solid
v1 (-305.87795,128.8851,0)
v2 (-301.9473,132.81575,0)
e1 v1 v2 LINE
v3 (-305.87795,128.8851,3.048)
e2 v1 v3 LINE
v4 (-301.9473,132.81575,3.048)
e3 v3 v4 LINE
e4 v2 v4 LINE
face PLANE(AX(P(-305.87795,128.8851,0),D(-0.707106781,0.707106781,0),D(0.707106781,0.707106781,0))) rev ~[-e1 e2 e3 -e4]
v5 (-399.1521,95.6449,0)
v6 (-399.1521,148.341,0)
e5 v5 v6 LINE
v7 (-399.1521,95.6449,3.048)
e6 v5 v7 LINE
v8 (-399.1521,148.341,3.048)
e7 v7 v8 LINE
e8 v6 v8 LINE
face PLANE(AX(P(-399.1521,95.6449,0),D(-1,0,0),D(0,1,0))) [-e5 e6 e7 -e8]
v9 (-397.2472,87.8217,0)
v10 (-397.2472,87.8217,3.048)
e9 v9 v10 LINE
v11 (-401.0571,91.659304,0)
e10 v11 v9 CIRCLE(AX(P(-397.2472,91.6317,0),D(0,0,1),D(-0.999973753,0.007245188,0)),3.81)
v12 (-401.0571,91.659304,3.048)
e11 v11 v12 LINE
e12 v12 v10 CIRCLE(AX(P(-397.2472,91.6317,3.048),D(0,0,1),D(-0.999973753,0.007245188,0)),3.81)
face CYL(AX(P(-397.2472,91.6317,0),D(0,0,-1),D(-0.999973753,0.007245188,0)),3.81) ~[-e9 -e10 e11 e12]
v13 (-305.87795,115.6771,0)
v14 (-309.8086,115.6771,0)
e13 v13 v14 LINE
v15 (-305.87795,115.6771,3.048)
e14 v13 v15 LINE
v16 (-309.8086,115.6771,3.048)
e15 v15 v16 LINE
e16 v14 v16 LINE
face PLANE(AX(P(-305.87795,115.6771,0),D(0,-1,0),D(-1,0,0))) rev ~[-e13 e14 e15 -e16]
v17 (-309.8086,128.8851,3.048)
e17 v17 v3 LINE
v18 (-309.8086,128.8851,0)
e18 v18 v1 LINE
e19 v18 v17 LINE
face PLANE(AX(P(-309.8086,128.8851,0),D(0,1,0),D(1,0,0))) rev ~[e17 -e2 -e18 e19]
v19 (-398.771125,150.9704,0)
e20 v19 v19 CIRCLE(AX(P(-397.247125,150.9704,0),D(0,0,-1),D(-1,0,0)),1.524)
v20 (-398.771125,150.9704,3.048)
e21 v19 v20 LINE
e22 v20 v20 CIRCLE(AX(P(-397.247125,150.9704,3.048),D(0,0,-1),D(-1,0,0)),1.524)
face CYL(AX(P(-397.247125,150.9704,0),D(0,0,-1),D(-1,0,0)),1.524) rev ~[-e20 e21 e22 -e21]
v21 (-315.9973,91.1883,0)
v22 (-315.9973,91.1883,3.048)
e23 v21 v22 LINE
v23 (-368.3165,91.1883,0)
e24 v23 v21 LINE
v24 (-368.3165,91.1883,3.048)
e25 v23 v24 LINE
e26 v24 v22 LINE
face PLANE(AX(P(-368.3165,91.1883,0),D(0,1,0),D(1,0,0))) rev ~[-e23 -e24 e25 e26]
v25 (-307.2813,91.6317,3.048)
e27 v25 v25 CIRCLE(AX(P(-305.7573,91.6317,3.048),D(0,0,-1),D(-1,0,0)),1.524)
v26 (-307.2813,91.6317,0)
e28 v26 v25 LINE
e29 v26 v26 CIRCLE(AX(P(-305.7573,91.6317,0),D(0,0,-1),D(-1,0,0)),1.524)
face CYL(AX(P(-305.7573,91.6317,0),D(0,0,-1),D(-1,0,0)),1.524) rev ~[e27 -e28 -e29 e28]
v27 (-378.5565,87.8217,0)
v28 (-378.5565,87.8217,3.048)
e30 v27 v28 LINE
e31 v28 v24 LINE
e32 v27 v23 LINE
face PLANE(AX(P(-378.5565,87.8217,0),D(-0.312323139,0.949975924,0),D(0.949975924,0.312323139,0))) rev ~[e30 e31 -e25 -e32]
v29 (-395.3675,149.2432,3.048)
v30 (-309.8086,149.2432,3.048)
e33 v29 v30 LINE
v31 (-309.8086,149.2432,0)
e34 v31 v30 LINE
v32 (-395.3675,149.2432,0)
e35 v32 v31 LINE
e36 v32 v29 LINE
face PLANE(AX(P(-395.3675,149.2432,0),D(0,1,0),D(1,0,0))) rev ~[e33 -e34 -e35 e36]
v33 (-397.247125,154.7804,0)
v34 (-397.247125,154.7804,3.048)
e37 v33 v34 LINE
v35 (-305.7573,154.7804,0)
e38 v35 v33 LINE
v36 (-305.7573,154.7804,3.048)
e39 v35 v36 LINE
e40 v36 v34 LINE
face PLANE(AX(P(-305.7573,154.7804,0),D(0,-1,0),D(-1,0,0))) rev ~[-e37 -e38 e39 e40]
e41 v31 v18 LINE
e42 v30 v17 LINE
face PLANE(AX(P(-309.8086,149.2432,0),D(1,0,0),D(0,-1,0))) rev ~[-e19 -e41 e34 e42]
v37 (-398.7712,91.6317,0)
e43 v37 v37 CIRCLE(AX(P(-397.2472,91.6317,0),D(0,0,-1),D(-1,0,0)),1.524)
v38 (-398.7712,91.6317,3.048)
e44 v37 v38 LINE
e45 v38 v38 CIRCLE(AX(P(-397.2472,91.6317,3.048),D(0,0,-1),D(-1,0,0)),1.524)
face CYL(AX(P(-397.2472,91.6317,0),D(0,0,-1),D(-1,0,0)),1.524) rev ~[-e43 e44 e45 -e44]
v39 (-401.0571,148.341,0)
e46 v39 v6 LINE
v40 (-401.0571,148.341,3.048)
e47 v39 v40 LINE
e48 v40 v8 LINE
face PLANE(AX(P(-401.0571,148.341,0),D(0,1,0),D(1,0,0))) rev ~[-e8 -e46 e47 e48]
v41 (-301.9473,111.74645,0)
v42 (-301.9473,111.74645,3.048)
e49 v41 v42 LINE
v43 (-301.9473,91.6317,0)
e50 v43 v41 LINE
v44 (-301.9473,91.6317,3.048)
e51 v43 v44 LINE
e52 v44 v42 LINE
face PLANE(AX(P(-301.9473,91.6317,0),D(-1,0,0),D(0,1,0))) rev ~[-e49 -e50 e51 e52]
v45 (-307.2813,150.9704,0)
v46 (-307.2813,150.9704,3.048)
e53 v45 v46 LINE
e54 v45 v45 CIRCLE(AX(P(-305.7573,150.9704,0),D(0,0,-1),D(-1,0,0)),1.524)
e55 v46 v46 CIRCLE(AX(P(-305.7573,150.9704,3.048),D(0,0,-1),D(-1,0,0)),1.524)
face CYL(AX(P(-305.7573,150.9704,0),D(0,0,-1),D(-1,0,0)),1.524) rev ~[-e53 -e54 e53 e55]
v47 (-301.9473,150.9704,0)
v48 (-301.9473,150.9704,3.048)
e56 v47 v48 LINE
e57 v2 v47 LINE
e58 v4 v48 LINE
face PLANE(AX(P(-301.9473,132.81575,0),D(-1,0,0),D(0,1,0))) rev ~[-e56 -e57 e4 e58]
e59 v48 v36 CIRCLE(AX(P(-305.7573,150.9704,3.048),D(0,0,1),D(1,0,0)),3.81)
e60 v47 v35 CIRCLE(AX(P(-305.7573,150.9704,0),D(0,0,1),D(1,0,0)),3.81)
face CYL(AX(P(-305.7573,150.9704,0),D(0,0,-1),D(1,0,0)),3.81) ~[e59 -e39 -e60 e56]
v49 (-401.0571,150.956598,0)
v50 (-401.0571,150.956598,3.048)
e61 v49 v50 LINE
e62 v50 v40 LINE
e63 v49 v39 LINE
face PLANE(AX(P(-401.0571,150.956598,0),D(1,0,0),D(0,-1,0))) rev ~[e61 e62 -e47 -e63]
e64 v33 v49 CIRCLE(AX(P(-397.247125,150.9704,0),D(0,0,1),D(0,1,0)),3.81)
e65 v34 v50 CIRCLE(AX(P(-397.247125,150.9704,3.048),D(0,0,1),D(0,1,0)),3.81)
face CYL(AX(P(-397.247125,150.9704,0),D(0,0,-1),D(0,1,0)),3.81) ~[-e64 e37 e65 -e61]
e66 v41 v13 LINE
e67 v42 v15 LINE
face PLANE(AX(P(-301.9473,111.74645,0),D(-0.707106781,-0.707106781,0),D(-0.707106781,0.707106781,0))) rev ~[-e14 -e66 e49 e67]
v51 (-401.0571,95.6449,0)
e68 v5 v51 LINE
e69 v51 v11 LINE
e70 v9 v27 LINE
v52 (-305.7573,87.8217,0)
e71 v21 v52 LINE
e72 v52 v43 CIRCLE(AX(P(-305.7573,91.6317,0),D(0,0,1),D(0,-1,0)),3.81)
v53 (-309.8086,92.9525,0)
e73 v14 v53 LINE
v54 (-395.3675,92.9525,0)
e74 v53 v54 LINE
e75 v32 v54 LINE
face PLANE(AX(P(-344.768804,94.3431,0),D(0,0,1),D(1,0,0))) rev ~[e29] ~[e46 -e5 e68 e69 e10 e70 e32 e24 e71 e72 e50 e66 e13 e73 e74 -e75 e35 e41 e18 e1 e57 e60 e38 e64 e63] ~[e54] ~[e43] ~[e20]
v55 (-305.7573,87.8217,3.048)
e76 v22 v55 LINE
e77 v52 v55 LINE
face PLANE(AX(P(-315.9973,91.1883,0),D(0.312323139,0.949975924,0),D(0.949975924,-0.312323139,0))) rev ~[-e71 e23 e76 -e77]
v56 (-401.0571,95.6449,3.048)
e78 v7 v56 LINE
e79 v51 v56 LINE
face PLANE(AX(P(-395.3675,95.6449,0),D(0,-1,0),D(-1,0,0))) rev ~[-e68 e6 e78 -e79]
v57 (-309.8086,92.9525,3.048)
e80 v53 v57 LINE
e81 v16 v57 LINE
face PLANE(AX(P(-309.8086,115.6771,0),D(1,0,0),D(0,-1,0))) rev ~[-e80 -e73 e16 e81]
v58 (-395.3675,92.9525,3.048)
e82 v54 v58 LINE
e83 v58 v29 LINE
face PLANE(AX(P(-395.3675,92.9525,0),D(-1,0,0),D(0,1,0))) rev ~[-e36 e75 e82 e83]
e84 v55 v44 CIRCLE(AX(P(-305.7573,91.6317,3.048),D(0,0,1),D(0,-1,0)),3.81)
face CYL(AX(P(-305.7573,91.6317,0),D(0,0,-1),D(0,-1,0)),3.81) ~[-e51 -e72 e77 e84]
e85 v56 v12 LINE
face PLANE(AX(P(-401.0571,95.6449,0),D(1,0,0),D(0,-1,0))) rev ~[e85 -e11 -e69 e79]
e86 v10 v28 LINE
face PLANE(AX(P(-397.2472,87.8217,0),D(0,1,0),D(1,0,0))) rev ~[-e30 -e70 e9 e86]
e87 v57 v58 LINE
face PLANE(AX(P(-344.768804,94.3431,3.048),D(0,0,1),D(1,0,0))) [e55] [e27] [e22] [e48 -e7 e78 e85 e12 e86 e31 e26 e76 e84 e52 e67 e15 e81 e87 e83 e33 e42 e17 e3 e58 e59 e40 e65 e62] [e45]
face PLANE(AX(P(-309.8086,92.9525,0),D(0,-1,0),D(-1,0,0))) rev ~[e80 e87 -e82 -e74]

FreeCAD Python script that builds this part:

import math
import FreeCAD as App
import Part
import Sketcher
from FreeCAD import Vector
Q = App.Units.Quantity

doc = App.newDocument("Part")
body = doc.addObject("PartDesign::Body", "Body")

# Sketch on XY plane
sketch1 = doc.addObject("Sketcher::SketchObject", "Sketch")
body.addObject(sketch1)
sketch1.AttachmentSupport = (doc.XY_Plane, [""])
sketch1.MapMode = "FlatFace"
sketch1.addGeometry([
    Part.LineSegment(Vector(-401.0571, 150.956598, 0), Vector(-401.0571, 148.341, 0)),  # 0
    Part.LineSegment(Vector(-401.0571, 148.341, 0), Vector(-399.1521, 148.341, 0)),  # 1
    Part.LineSegment(Vector(-399.1521, 148.341, 0), Vector(-399.1521, 95.6449, 0)),  # 2
    Part.LineSegment(Vector(-399.1521, 95.6449, 0), Vector(-401.0571, 95.6449, 0)),  # 3
    Part.LineSegment(Vector(-401.0571, 95.6449, 0), Vector(-401.0571, 91.659304, 0)),  # 4
    Part.ArcOfCircle(Part.Circle(Vector(-397.2472, 91.6317, 0), Vector(0, 0, 1), 3.81), math.radians(179.584878), math.radians(270)),  # 5
    Part.LineSegment(Vector(-397.2472, 87.8217, 0), Vector(-378.5565, 87.8217, 0)),  # 6
    Part.LineSegment(Vector(-378.5565, 87.8217, 0), Vector(-368.3165, 91.1883, 0)),  # 7
    Part.LineSegment(Vector(-368.3165, 91.1883, 0), Vector(-315.9973, 91.1883, 0)),  # 8
    Part.LineSegment(Vector(-315.9973, 91.1883, 0), Vector(-305.7573, 87.8217, 0)),  # 9
    Part.ArcOfCircle(Part.Circle(Vector(-305.7573, 91.6317, 0), Vector(0, 0, 1), 3.81), math.radians(-90), math.radians(0)),  # 10
    Part.LineSegment(Vector(-301.9473, 91.6317, 0), Vector(-301.9473, 111.74645, 0)),  # 11
    Part.LineSegment(Vector(-301.9473, 111.74645, 0), Vector(-305.87795, 115.6771, 0)),  # 12
    Part.LineSegment(Vector(-305.87795, 115.6771, 0), Vector(-309.8086, 115.6771, 0)),  # 13
    Part.LineSegment(Vector(-309.8086, 115.6771, 0), Vector(-309.8086, 92.9525, 0)),  # 14
    Part.LineSegment(Vector(-309.8086, 92.9525, 0), Vector(-395.3675, 92.9525, 0)),  # 15
    Part.LineSegment(Vector(-395.3675, 92.9525, 0), Vector(-395.3675, 149.2432, 0)),  # 16
    Part.LineSegment(Vector(-395.3675, 149.2432, 0), Vector(-309.8086, 149.2432, 0)),  # 17
    Part.LineSegment(Vector(-309.8086, 149.2432, 0), Vector(-309.8086, 128.8851, 0)),  # 18
    Part.LineSegment(Vector(-309.8086, 128.8851, 0), Vector(-305.87795, 128.8851, 0)),  # 19
    Part.LineSegment(Vector(-305.87795, 128.8851, 0), Vector(-301.9473, 132.81575, 0)),  # 20
    Part.LineSegment(Vector(-301.9473, 132.81575, 0), Vector(-301.9473, 150.9704, 0)),  # 21
    Part.ArcOfCircle(Part.Circle(Vector(-305.7573, 150.9704, 0), Vector(0, 0, 1), 3.81), math.radians(0), math.radians(90)),  # 22
    Part.LineSegment(Vector(-305.7573, 154.7804, 0), Vector(-397.247125, 154.7804, 0)),  # 23
    Part.ArcOfCircle(Part.Circle(Vector(-397.247125, 150.9704, 0), Vector(0, 0, 1), 3.81), math.radians(90), math.radians(180.207561)),  # 24
    Part.Circle(Vector(-397.247125, 150.9704, 0), Vector(0, 0, 1), 1.3462),  # 25
    Part.Circle(Vector(-305.7573, 150.9704, 0), Vector(0, 0, 1), 1.3462),  # 26
    Part.Circle(Vector(-305.7573, 91.6317, 0), Vector(0, 0, 1), 1.3462),  # 27
    Part.Circle(Vector(-397.2472, 91.6317, 0), Vector(0, 0, 1), 1.3462),  # 28
], False)
sketch1.addConstraint([
    Sketcher.Constraint("Coincident", 0, 2, 1, 1),
    Sketcher.Constraint("Coincident", 1, 2, 2, 1),
    Sketcher.Constraint("Coincident", 2, 2, 3, 1),
    Sketcher.Constraint("Coincident", 3, 2, 4, 1),
    Sketcher.Constraint("Coincident", 4, 2, 5, 1),
    Sketcher.Constraint("Tangent", 5, 2, 6, 1),
    Sketcher.Constraint("Coincident", 6, 2, 7, 1),
    Sketcher.Constraint("Coincident", 7, 2, 8, 1),
    Sketcher.Constraint("Coincident", 8, 2, 9, 1),
    Sketcher.Constraint("Coincident", 9, 2, 10, 1),
    Sketcher.Constraint("Tangent", 10, 2, 11, 1),
    Sketcher.Constraint("Coincident", 11, 2, 12, 1),
    Sketcher.Constraint("Coincident", 12, 2, 13, 1),
    Sketcher.Constraint("Coincident", 13, 2, 14, 1),
    Sketcher.Constraint("Coincident", 14, 2, 15, 1),
    Sketcher.Constraint("Coincident", 15, 2, 16, 1),
    Sketcher.Constraint("Coincident", 16, 2, 17, 1),
    Sketcher.Constraint("Coincident", 17, 2, 18, 1),
    Sketcher.Constraint("Coincident", 18, 2, 19, 1),
    Sketcher.Constraint("Coincident", 19, 2, 20, 1),
    Sketcher.Constraint("Coincident", 20, 2, 21, 1),
    Sketcher.Constraint("Tangent", 21, 2, 22, 1),
    Sketcher.Constraint("Tangent", 22, 2, 23, 1),
    Sketcher.Constraint("Tangent", 23, 2, 24, 1),
    Sketcher.Constraint("Coincident", 24, 2, 0, 1),
    Sketcher.Constraint("Vertical", 0),
    Sketcher.Constraint("Horizontal", 1),
    Sketcher.Constraint("Vertical", 2),
    Sketcher.Constraint("Horizontal", 3),
    Sketcher.Constraint("Vertical", 4),
    Sketcher.Constraint("Horizontal", 6),
    Sketcher.Constraint("Horizontal", 8),
    Sketcher.Constraint("Vertical", 11),
    Sketcher.Constraint("Horizontal", 13),
    Sketcher.Constraint("Vertical", 14),
    Sketcher.Constraint("Horizontal", 15),
    Sketcher.Constraint("Vertical", 16),
    Sketcher.Constraint("Horizontal", 17),
    Sketcher.Constraint("Vertical", 18),
    Sketcher.Constraint("Horizontal", 19),
    Sketcher.Constraint("Vertical", 21),
    Sketcher.Constraint("Horizontal", 23),
    Sketcher.Constraint("Coincident", 25, 3, 24, 3),
    Sketcher.Constraint("Coincident", 26, 3, 22, 3),
    Sketcher.Constraint("Coincident", 27, 3, 10, 3),
    Sketcher.Constraint("Coincident", 28, 3, 5, 3),
    Sketcher.Constraint("Equal", 5, 10),
    Sketcher.Constraint("Equal", 10, 22),
    Sketcher.Constraint("Equal", 22, 24),
    Sketcher.Constraint("Equal", 25, 26),
    Sketcher.Constraint("Equal", 26, 27),
    Sketcher.Constraint("Equal", 27, 28),
    Sketcher.Constraint("Perpendicular", 12, 20),
    Sketcher.Constraint("Horizontal", 5, 3, 10, 3),
    Sketcher.Constraint("Vertical", 10, 3, 22, 3),
    Sketcher.Constraint("Vertical", 0, 2, 3, 2),
    Sketcher.Constraint("Vertical", 27, 3, 9, 2),
    Sketcher.Constraint("Vertical", 14, 2, 17, 2),
    Sketcher.Constraint("Vertical", 12, 2, 19, 2),
    Sketcher.Constraint("Equal", 7, 9),
    Sketcher.Constraint("Equal", 12, 20),
    Sketcher.Constraint("Radius", 5, Q("0.15 in")),
    Sketcher.Constraint("Diameter", 25, Q("0.106 in")),
    Sketcher.Constraint("DistanceX", 1, 1, 1, 2, Q("0.075 in")),
    Sketcher.Constraint("DistanceY", 13, 2, 18, 2, Q("0.52 in")),
    Sketcher.Constraint("DistanceY", 18, 2, 18, 1, Q("0.8015 in")),
    Sketcher.Constraint("DistanceY", 5, 3, 2, 2, Q("0.158 in")),
    Sketcher.Constraint("DistanceX", 2, 2, 7, 2, Q("1.214 in")),
    Sketcher.Constraint("DistanceY", 10, 3, 14, 2, Q("0.052 in")),
    Sketcher.Constraint("DistanceX", 2, 2, 15, 2, Q("0.149 in")),
    Sketcher.Constraint("DistanceY", 16, 2, 24, 3, Q("0.068 in")),
    Sketcher.Constraint("DistanceX", 6, 1, 6, 2, Q("18.6907 mm")),
    Sketcher.Constraint("DistanceX", 8, 1, 8, 2, Q("52.3192 mm")),
    Sketcher.Constraint("DistanceX", 15, 2, 15, 1, Q("85.5589 mm")),
    Sketcher.Constraint("DistanceY", 2, 2, 2, 1, Q("52.6961 mm")),
    Sketcher.Constraint("DistanceY", 14, 2, 14, 1, Q("22.7246 mm")),
    Sketcher.Constraint("DistanceX", 13, 2, 11, 2, Q("0.3095 in")),
    Sketcher.Constraint("DistanceX", 13, 2, 13, 1, Q("3.93065 mm")),
    Sketcher.Constraint("DistanceX", 5, 3, -1, 1, Q("397.2472 mm")),
    Sketcher.Constraint("DistanceY", -1, 1, 5, 3, Q("91.6317 mm")),
    Sketcher.Constraint("DistanceY", -1, 1, 7, 2, Q("91.1883 mm")),
    Sketcher.Constraint("DistanceX", 23, 2, 23, 1, Q("91.489825 mm")),
])
pad1 = doc.addObject("PartDesign::Pad", "Pad")
body.addObject(pad1)
pad1.Profile = sketch1
pad1.Length = Q("0.12 in")

# Sketch on XY plane
sketch2 = doc.addObject("Sketcher::SketchObject", "Sketch001")
body.addObject(sketch2)
sketch2.AttachmentSupport = (doc.XY_Plane, [""])
sketch2.MapMode = "FlatFace"
sketch2.addGeometry([
    Part.Circle(Vector(-305.8, 151, 0), Vector(0, 0, 1), 1.5),
    Part.Circle(Vector(-305.8, 91.6, 0), Vector(0, 0, 1), 1.5),
    Part.Circle(Vector(-397.2, 91.6, 0), Vector(0, 0, 1), 1.5),
    Part.Circle(Vector(-397.2, 151, 0), Vector(0, 0, 1), 1.5),
], False)
sketch2.addConstraint([
    Sketcher.Constraint("Equal", 0, 1),
    Sketcher.Constraint("Equal", 1, 2),
    Sketcher.Constraint("Equal", 2, 3),
    Sketcher.Constraint("Horizontal", 1, 3, 2, 3),
    Sketcher.Constraint("Horizontal", 0, 3, 3, 3),
    Sketcher.Constraint("Vertical", 0, 3, 1, 3),
    Sketcher.Constraint("Diameter", 0, Q("0.12 in")),
    Sketcher.Constraint("DistanceX", 0, 3, -1, 1, Q("305.7573 mm")),
    Sketcher.Constraint("DistanceY", -1, 1, 0, 3, Q("150.9704 mm")),
    Sketcher.Constraint("DistanceY", -1, 1, 1, 3, Q("91.6317 mm")),
    Sketcher.Constraint("DistanceX", 2, 3, -1, 1, Q("397.2472 mm")),
    Sketcher.Constraint("DistanceX", 3, 3, -1, 1, Q("397.247125 mm")),
])
pocket1 = doc.addObject("PartDesign::Pocket", "Pocket")
body.addObject(pocket1)
pocket1.Profile = sketch2
pocket1.Type = "ThroughAll"
pocket1.Reversed = True

doc.recompute()
